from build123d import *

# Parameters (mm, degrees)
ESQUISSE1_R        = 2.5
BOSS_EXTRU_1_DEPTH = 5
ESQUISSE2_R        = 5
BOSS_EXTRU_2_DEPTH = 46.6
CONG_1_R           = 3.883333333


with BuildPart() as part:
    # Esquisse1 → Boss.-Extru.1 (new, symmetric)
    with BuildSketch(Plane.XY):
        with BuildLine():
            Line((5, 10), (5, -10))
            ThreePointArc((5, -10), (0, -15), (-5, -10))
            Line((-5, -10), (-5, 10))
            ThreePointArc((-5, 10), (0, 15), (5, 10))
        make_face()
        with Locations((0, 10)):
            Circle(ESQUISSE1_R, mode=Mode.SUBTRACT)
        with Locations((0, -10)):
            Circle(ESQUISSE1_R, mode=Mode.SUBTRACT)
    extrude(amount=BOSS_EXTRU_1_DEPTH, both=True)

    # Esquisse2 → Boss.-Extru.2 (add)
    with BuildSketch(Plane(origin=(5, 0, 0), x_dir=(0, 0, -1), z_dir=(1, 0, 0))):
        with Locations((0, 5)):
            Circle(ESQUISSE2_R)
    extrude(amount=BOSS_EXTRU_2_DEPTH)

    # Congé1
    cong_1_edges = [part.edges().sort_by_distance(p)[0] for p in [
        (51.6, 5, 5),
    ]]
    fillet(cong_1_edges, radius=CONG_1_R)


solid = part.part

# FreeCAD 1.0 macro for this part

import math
import FreeCAD as App
import Part
import Sketcher
Q = App.Units.Quantity


def edges_at(feature, points):
    """Names of the edges that pass closest to the given points."""
    edges = feature.Shape.Edges
    near = lambda p: min(range(len(edges)), key=lambda i: edges[i].distToShape(Part.Vertex(*p))[0])
    return sorted({f"Edge{near(p) + 1}" for p in points})

doc = App.newDocument("Part")
params = doc.addObject("Spreadsheet::Sheet", "Params")
for row, (alias, value) in enumerate([
    ("sketch1_diameter", "5 mm"),
    ("sketch1_radius", "5 mm"),
    ("sketch1_height", "20 mm"),
    ("pad1_length", "10 mm"),
    ("sketch2_diameter", "10 mm"),
    ("pad2_length", "46.6 mm"),
    ("fillet_radius", "3.883333 mm"),
], start=1):
    params.set(f"A{row}", alias)
    params.set(f"B{row}", "=" + value)
    params.setAlias(f"B{row}", alias)

body = doc.addObject("PartDesign::Body", "Body")

# Sketch on XY plane
sketch1 = doc.addObject("Sketcher::SketchObject", "Sketch")
body.addObject(sketch1)
sketch1.AttachmentSupport = (doc.XY_Plane, [""])
sketch1.MapMode = "FlatFace"
sketch1.addGeometry([
    Part.LineSegment(App.Vector(5, -10, 0), App.Vector(5, 10, 0)),  # 0
    Part.ArcOfCircle(Part.Circle(App.Vector(0, 10, 0), App.Vector(0, 0, 1), 5), math.radians(0), math.radians(180)),  # 1
    Part.LineSegment(App.Vector(-5, 10, 0), App.Vector(-5, -10, 0)),  # 2
    Part.ArcOfCircle(Part.Circle(App.Vector(0, -10, 0), App.Vector(0, 0, 1), 5), math.radians(180), math.radians(360)),  # 3
    Part.Circle(App.Vector(0, -10, 0), App.Vector(0, 0, 1), 2.5),  # 4
    Part.Circle(App.Vector(0, 10, 0), App.Vector(0, 0, 1), 2.5),  # 5
], False)
sketch1.addConstraint([
    Sketcher.Constraint("Tangent", 0, 2, 1, 1),
    Sketcher.Constraint("Tangent", 1, 2, 2, 1),
    Sketcher.Constraint("Tangent", 2, 2, 3, 1),
    Sketcher.Constraint("Tangent", 3, 2, 0, 1),
    Sketcher.Constraint("Vertical", 0),
    Sketcher.Constraint("Vertical", 2),
    Sketcher.Constraint("Coincident", 4, 3, 3, 3),
    Sketcher.Constraint("Coincident", 5, 3, 1, 3),
    Sketcher.Constraint("Equal", 4, 5),
    Sketcher.Constraint("Symmetric", 1, 3, 3, 3, -1, 1),
    Sketcher.Constraint("Diameter", 4, Q("5 mm")),
    Sketcher.Constraint("Radius", 1, Q("5 mm")),
    Sketcher.Constraint("DistanceY", 0, 1, 0, 2, Q("20 mm")),
])
sketch1.setExpression("Constraints[10]", "Params.sketch1_diameter")
sketch1.setExpression("Constraints[11]", "Params.sketch1_radius")
sketch1.setExpression("Constraints[12]", "Params.sketch1_height")
pad1 = doc.addObject("PartDesign::Pad", "Pad")
body.addObject(pad1)
pad1.Profile = sketch1
pad1.setExpression("Length", "Params.pad1_length")
pad1.Midplane = True

# Sketch on YZ plane
sketch2 = doc.addObject("Sketcher::SketchObject", "Sketch001")
body.addObject(sketch2)
sketch2.AttachmentSupport = (doc.YZ_Plane, [""])
sketch2.MapMode = "FlatFace"
sketch2.AttachmentOffset = App.Placement(App.Vector(0, 0, 5), App.Rotation())
sketch2.addGeometry(Part.Circle(App.Vector(5, 0, 0), App.Vector(0, 0, 1), 5), False)
sketch2.addConstraint([
    Sketcher.Constraint("PointOnObject", 0, 3, -1),
    Sketcher.Constraint("Diameter", 0, Q("10 mm")),
    Sketcher.Constraint("DistanceX", -1, 1, 0, 3, Q("5 mm")),
])
sketch2.setExpression("Constraints[1]", "Params.sketch2_diameter")
pad2 = doc.addObject("PartDesign::Pad", "Pad001")
body.addObject(pad2)
pad2.Profile = sketch2
pad2.setExpression("Length", "Params.pad2_length")
doc.recompute()

fillet = doc.addObject("PartDesign::Fillet", "Fillet")
body.addObject(fillet)
fillet.Base = (pad2, edges_at(pad2, [(51.6, 5, 5)]))
fillet.setExpression("Radius", "Params.fillet_radius")

doc.recompute()
